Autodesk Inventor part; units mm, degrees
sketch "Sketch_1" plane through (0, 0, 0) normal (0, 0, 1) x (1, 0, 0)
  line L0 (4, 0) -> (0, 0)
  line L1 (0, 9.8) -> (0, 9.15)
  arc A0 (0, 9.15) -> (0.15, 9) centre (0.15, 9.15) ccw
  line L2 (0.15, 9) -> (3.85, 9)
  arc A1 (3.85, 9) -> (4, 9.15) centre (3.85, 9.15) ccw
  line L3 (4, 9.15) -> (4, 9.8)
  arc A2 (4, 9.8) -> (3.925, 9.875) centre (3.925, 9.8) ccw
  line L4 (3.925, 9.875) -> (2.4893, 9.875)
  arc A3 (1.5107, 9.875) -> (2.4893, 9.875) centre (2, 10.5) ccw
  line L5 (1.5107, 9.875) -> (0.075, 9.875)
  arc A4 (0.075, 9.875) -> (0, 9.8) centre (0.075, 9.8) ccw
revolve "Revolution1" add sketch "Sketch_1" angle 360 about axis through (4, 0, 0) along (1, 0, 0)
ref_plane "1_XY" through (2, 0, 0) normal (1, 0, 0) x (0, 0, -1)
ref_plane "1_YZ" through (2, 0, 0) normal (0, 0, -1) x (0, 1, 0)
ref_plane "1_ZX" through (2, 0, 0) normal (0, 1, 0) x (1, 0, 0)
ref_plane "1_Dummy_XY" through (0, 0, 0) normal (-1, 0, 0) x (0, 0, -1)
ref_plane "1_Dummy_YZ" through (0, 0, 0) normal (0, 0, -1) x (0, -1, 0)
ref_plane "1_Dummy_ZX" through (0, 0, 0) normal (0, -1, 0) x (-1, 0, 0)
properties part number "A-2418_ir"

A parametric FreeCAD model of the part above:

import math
import FreeCAD as App
import Part
import Sketcher

doc = App.newDocument("Part")
body = doc.addObject("PartDesign::Body", "Body")

sketch1 = body.newObject("Sketcher::SketchObject", "Sketch")
sketch1.AttachmentSupport = (doc.getObject("XY_Plane"), [""])
sketch1.MapMode = "FlatFace"
sketch1.addGeometry(Part.ArcOfCircle(Part.Circle(App.Vector(0.07, 9.8, 0), App.Vector(0, 0, 1), 0.07), math.radians(90), math.radians(180)), False)
sketch1.addGeometry(Part.LineSegment(App.Vector(0, 9.8, 0), App.Vector(0, 9.15, 0)), False)
sketch1.addGeometry(Part.ArcOfCircle(Part.Circle(App.Vector(0.15, 9.15, 0), App.Vector(0, 0, 1), 0.15), math.radians(180), math.radians(270)), False)
sketch1.addGeometry(Part.LineSegment(App.Vector(0.15, 9, 0), App.Vector(3.85, 9, 0)), False)
sketch1.addGeometry(Part.ArcOfCircle(Part.Circle(App.Vector(3.85, 9.15, 0), App.Vector(0, 0, 1), 0.15), math.radians(-90), math.radians(0)), False)
sketch1.addGeometry(Part.LineSegment(App.Vector(4, 9.15, 0), App.Vector(4, 9.8, 0)), False)
sketch1.addGeometry(Part.ArcOfCircle(Part.Circle(App.Vector(3.92, 9.8, 0), App.Vector(0, 0, 1), 0.08), math.radians(0), math.radians(90)), False)
sketch1.addGeometry(Part.LineSegment(App.Vector(3.92, 9.88, 0), App.Vector(2.49, 9.88, 0)), False)
sketch1.addGeometry(Part.ArcOfCircle(Part.Circle(App.Vector(2, 10.5, 0), App.Vector(0, 0, 1), 0.79), math.radians(-128), math.radians(-52)), False)
sketch1.addGeometry(Part.LineSegment(App.Vector(1.51, 9.88, 0), App.Vector(0.07, 9.88, 0)), False)
sketch1.addConstraint(Sketcher.Constraint("Tangent", 0, 2, 1, 1))
sketch1.addConstraint(Sketcher.Constraint("Tangent", 1, 2, 2, 1))
sketch1.addConstraint(Sketcher.Constraint("Tangent", 2, 2, 3, 1))
sketch1.addConstraint(Sketcher.Constraint("Tangent", 3, 2, 4, 1))
sketch1.addConstraint(Sketcher.Constraint("Tangent", 4, 2, 5, 1))
sketch1.addConstraint(Sketcher.Constraint("Tangent", 5, 2, 6, 1))
sketch1.addConstraint(Sketcher.Constraint("Tangent", 6, 2, 7, 1))
sketch1.addConstraint(Sketcher.Constraint("Coincident", 7, 2, 8, 2))
sketch1.addConstraint(Sketcher.Constraint("Coincident", 8, 1, 9, 1))
sketch1.addConstraint(Sketcher.Constraint("Tangent", 9, 2, 0, 1))
sketch1.addConstraint(Sketcher.Constraint("Vertical", 1))
sketch1.addConstraint(Sketcher.Constraint("Horizontal", 3))
sketch1.addConstraint(Sketcher.Constraint("Vertical", 5))
sketch1.addConstraint(Sketcher.Constraint("Horizontal", 7))
sketch1.addConstraint(Sketcher.Constraint("Horizontal", 9))
sketch1.addConstraint(Sketcher.Constraint("Equal", 2, 4))
sketch1.addConstraint(Sketcher.Constraint("Equal", 0, 6))
sketch1.addConstraint(Sketcher.Constraint("PointOnObject", 0, 2, -2))
sketch1.addConstraint(Sketcher.Constraint("Horizontal", 0, 3, 6, 3))
sketch1.addConstraint(Sketcher.Constraint("Equal", 7, 9))
sketch1.addConstraint(Sketcher.Constraint("Radius", 2, 0.15))
sketch1.addConstraint(Sketcher.Constraint("DistanceX", 3, 1, 3, 2, 3.7))
sketch1.addConstraint(Sketcher.Constraint("DistanceY", -1, 1, 2, 2, 9.0))
sketch1.addConstraint(Sketcher.Constraint("Radius", 0, 0.075))
sketch1.addConstraint(Sketcher.Constraint("DistanceY", 1, 2, 1, 1, 0.65))
sketch1.addConstraint(Sketcher.Constraint("DistanceY", -1, 1, 8, 3, 10.5))
sketch1.addConstraint(Sketcher.Constraint("Radius", 8, 0.7938))
revolution = body.newObject("PartDesign::Revolution", "Revolution")
revolution.Profile = sketch1
revolution.ReferenceAxis = (sketch1, ["H_Axis"])
revolution.Angle = 360

doc.recompute()
